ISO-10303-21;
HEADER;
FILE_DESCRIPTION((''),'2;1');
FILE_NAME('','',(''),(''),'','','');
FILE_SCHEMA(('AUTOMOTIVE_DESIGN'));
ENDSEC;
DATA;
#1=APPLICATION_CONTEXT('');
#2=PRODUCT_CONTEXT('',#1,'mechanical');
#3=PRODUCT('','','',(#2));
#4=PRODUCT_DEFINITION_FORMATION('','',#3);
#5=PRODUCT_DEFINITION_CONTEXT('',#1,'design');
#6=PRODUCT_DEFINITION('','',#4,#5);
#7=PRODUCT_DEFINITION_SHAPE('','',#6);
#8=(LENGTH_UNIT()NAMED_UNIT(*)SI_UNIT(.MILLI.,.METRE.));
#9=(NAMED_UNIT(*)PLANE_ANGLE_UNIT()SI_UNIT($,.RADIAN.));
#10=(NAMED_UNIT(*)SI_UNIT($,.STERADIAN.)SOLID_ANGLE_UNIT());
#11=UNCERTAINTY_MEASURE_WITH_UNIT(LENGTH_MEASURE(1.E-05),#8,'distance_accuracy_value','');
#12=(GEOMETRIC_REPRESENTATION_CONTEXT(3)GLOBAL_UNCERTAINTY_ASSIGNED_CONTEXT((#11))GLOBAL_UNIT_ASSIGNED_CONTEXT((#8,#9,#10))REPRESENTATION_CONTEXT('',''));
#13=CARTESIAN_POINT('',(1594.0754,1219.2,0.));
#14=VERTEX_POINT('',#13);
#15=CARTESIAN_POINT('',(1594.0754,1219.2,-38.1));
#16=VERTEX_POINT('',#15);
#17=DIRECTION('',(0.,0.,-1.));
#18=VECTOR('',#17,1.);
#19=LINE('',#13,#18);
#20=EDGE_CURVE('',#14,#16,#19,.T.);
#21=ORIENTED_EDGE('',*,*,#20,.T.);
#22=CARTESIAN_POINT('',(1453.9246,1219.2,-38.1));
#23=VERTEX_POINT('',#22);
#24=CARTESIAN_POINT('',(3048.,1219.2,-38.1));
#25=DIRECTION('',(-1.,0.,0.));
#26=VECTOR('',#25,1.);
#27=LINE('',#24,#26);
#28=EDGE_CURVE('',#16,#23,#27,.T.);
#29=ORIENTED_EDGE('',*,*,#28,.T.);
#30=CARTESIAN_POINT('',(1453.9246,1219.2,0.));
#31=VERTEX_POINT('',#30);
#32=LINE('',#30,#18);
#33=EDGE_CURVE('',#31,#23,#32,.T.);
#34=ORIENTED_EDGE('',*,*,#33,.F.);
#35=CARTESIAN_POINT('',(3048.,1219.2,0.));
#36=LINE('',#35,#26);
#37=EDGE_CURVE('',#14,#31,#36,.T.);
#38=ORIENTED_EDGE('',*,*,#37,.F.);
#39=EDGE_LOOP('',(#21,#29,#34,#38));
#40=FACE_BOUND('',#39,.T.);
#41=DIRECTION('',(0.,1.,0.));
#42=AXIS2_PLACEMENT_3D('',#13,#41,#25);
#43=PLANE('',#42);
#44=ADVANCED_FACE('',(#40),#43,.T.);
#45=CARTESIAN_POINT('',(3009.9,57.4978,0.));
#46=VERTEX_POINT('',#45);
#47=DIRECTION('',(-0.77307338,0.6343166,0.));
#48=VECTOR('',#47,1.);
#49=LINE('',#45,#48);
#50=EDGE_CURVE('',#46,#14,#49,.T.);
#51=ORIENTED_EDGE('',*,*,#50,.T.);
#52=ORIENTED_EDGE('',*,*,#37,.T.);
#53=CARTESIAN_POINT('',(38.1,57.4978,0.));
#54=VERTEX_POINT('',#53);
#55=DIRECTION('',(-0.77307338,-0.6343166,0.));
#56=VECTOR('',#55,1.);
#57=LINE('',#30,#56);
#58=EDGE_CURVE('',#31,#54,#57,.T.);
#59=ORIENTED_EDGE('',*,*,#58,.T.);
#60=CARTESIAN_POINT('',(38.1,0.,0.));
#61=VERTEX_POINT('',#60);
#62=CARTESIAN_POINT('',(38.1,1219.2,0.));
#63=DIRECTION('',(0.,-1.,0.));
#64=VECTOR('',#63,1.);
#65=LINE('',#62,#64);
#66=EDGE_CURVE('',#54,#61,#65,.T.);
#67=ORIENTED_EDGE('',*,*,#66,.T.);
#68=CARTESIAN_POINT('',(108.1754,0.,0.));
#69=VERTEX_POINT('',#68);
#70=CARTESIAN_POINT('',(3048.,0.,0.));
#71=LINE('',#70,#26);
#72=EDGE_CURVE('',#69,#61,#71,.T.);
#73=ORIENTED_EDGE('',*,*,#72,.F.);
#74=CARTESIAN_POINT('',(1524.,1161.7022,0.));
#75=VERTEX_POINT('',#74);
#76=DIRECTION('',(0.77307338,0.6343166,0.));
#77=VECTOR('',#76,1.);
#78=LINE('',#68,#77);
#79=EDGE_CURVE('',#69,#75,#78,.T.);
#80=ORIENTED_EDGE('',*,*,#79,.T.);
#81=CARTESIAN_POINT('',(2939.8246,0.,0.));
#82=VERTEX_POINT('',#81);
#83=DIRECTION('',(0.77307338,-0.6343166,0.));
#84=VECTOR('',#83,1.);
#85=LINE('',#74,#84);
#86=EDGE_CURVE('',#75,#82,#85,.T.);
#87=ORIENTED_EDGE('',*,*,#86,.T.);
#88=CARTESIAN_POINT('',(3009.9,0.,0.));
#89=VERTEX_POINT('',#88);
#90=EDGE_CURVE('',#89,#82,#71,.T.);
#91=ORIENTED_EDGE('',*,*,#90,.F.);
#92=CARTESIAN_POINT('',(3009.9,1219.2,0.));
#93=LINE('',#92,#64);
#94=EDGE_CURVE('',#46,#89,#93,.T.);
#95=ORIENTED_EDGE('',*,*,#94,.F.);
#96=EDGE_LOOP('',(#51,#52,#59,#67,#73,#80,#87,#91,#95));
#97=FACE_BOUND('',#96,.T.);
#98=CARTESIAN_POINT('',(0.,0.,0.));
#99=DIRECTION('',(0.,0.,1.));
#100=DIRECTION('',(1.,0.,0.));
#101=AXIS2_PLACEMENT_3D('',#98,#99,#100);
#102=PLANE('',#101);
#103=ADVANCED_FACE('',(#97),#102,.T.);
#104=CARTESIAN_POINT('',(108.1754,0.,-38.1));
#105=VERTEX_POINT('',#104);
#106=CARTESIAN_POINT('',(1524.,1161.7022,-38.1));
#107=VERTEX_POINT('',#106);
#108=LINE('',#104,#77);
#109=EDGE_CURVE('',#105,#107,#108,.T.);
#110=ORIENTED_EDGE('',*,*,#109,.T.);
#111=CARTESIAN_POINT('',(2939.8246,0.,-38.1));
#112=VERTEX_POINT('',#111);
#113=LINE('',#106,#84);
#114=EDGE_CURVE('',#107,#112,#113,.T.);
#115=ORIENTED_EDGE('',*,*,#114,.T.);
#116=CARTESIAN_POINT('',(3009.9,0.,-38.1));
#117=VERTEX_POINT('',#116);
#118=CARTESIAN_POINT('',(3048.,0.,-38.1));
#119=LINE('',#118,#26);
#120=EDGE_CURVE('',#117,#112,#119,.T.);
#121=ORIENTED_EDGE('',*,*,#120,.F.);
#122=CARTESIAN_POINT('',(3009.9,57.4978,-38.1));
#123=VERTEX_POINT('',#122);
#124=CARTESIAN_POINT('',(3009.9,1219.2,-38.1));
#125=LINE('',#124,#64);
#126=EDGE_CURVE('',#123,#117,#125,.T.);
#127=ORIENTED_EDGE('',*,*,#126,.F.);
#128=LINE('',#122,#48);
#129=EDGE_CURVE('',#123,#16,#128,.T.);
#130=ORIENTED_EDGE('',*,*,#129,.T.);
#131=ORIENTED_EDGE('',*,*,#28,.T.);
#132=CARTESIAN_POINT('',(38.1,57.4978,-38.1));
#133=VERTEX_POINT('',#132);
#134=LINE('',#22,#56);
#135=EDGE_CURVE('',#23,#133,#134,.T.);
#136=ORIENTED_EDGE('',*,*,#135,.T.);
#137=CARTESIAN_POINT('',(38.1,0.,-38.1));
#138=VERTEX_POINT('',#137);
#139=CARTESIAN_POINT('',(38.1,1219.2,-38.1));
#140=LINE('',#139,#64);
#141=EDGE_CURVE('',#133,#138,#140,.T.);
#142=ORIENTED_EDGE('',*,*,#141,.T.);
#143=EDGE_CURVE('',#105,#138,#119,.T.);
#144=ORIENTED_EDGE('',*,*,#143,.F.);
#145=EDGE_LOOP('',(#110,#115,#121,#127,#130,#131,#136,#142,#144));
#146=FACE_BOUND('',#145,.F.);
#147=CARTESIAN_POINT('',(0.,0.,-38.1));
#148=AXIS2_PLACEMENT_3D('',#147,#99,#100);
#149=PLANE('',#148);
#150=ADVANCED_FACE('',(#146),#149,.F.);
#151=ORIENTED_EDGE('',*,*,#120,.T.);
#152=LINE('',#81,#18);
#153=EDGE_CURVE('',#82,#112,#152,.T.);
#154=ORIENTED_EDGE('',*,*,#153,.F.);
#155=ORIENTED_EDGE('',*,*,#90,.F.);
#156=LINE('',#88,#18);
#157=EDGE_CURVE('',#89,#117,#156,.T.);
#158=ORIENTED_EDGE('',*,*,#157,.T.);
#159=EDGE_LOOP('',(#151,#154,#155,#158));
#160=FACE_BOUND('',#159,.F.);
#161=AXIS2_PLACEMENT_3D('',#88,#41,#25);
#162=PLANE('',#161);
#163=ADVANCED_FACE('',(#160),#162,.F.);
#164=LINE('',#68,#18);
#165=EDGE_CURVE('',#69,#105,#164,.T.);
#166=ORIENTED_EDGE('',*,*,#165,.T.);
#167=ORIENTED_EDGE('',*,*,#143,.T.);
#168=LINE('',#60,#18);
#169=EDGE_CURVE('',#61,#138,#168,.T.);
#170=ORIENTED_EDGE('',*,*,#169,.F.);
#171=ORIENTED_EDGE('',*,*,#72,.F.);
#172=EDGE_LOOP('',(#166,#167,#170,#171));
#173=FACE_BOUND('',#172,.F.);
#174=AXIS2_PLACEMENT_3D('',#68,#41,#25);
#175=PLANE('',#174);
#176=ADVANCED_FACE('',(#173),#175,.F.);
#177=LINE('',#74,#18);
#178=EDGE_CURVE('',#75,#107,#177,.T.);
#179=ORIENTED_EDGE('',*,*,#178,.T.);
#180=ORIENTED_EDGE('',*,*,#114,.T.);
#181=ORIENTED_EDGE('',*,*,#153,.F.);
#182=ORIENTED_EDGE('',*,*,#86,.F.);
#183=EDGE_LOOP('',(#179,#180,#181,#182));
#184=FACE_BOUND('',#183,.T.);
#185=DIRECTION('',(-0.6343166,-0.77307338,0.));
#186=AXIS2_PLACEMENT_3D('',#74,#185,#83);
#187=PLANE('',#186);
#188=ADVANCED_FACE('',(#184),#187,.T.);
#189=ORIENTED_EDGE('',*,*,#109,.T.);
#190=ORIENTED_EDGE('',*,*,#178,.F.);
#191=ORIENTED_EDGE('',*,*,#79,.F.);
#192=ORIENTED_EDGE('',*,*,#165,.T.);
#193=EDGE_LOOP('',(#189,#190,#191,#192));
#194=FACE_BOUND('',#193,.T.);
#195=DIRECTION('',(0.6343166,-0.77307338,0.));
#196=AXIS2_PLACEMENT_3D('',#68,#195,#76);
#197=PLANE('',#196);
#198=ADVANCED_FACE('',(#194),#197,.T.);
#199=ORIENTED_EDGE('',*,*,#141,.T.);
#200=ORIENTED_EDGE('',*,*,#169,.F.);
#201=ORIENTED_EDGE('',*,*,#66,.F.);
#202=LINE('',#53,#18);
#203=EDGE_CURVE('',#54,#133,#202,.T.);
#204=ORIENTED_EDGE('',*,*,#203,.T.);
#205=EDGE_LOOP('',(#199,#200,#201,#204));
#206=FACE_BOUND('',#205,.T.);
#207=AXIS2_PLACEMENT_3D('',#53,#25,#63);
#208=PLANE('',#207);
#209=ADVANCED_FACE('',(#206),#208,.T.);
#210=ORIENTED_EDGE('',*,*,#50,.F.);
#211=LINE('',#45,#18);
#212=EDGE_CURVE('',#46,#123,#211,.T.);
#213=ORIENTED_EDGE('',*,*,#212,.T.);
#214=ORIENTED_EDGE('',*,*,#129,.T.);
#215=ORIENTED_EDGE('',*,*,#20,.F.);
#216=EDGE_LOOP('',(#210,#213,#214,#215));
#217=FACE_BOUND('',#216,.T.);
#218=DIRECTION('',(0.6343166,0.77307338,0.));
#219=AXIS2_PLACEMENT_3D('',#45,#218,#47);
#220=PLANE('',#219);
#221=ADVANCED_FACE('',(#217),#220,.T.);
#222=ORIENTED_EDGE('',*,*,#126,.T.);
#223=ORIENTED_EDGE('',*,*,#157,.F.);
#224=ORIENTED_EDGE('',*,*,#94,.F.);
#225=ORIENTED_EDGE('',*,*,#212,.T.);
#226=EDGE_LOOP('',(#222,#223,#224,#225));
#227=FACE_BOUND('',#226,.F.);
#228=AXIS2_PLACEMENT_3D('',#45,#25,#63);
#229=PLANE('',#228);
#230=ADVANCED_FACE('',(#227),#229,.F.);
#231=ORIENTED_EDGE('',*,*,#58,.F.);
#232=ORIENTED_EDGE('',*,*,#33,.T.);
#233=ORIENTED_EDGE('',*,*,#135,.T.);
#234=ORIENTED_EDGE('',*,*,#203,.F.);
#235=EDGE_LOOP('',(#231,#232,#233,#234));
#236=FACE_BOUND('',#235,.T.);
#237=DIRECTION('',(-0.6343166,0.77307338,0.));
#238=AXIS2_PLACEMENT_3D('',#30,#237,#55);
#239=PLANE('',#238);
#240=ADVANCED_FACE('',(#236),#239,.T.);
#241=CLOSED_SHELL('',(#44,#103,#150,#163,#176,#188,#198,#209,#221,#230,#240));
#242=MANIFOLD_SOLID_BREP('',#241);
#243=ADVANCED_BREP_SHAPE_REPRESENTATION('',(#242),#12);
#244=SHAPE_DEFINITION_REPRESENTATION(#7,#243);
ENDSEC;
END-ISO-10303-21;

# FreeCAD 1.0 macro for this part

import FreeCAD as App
import Part
import Sketcher

V = App.Vector
Q = App.Units.Quantity

doc = App.newDocument("Part")
params = doc.addObject("Spreadsheet::Sheet", "Params")
for row, (alias, value) in enumerate([
    ("pad1_length", "1.5 in"),
], start=1):
    params.set(f"A{row}", alias)
    params.set(f"B{row}", "=" + value)
    params.setAlias(f"B{row}", alias)

body = doc.addObject("PartDesign::Body", "Body")

sketch1 = body.newObject("Sketcher::SketchObject", "Sketch")
sketch1.AttachmentSupport = (doc.getObject("XY_Plane"), [""])
sketch1.MapMode = "FlatFace"
sketch1.addGeometry(Part.LineSegment(V(2939.8246, 0, 0), V(3009.9, 0, 0)), False)
sketch1.addGeometry(Part.LineSegment(V(3009.9, 0, 0), V(3009.9, 57.4978, 0)), False)
sketch1.addGeometry(Part.LineSegment(V(3009.9, 57.4978, 0), V(1594.0754, 1219.2, 0)), False)
sketch1.addGeometry(Part.LineSegment(V(1594.0754, 1219.2, 0), V(1453.9246, 1219.2, 0)), False)
sketch1.addGeometry(Part.LineSegment(V(1453.9246, 1219.2, 0), V(38.1, 57.4978, 0)), False)
sketch1.addGeometry(Part.LineSegment(V(38.1, 57.4978, 0), V(38.1, 0, 0)), False)
sketch1.addGeometry(Part.LineSegment(V(38.1, 0, 0), V(108.1754, 0, 0)), False)
sketch1.addGeometry(Part.LineSegment(V(108.1754, 0, 0), V(1524, 1161.7022, 0)), False)
sketch1.addGeometry(Part.LineSegment(V(1524, 1161.7022, 0), V(2939.8246, 0, 0)), False)
sketch1.addConstraint(Sketcher.Constraint("Coincident", 0, 2, 1, 1))
sketch1.addConstraint(Sketcher.Constraint("Coincident", 1, 2, 2, 1))
sketch1.addConstraint(Sketcher.Constraint("Coincident", 2, 2, 3, 1))
sketch1.addConstraint(Sketcher.Constraint("Coincident", 3, 2, 4, 1))
sketch1.addConstraint(Sketcher.Constraint("Coincident", 4, 2, 5, 1))
sketch1.addConstraint(Sketcher.Constraint("Coincident", 5, 2, 6, 1))
sketch1.addConstraint(Sketcher.Constraint("Coincident", 6, 2, 7, 1))
sketch1.addConstraint(Sketcher.Constraint("Coincident", 7, 2, 8, 1))
sketch1.addConstraint(Sketcher.Constraint("Coincident", 8, 2, 0, 1))
sketch1.addConstraint(Sketcher.Constraint("Horizontal", 0))
sketch1.addConstraint(Sketcher.Constraint("Vertical", 1))
sketch1.addConstraint(Sketcher.Constraint("Horizontal", 3))
sketch1.addConstraint(Sketcher.Constraint("Vertical", 5))
sketch1.addConstraint(Sketcher.Constraint("Horizontal", 6))
sketch1.addConstraint(Sketcher.Constraint("PointOnObject", 0, 2, -1))
sketch1.addConstraint(Sketcher.Constraint("PointOnObject", 5, 2, -1))
sketch1.addConstraint(Sketcher.Constraint("Parallel", 4, 7))
sketch1.addConstraint(Sketcher.Constraint("Parallel", 2, 8))
sketch1.addConstraint(Sketcher.Constraint("Horizontal", 1, 2, 4, 2))
sketch1.addConstraint(Sketcher.Constraint("Equal", 0, 6))
sketch1.addConstraint(Sketcher.Constraint("Equal", 2, 4))
sketch1.addConstraint(Sketcher.Constraint("Equal", 4, 7))
sketch1.addConstraint(Sketcher.Constraint("DistanceY", -1, 1, 2, 2, Q("48 in")))
sketch1.addConstraint(Sketcher.Constraint("DistanceX", -1, 1, 7, 2, Q("60 in")))
sketch1.addConstraint(Sketcher.Constraint("DistanceX", 4, 2, 1, 2, Q("117 in")))
sketch1.addConstraint(Sketcher.Constraint("Angle", 2, Q("140.6307 deg")))
sketch1.addConstraint(Sketcher.Constraint("DistanceY", 1, 1, 1, 2, Q("2.2637 in")))
pad1 = body.newObject("PartDesign::Pad", "Pad")
pad1.Profile = sketch1
pad1.setExpression("Length", "Params.pad1_length")
pad1.Reversed = True

doc.recompute()
